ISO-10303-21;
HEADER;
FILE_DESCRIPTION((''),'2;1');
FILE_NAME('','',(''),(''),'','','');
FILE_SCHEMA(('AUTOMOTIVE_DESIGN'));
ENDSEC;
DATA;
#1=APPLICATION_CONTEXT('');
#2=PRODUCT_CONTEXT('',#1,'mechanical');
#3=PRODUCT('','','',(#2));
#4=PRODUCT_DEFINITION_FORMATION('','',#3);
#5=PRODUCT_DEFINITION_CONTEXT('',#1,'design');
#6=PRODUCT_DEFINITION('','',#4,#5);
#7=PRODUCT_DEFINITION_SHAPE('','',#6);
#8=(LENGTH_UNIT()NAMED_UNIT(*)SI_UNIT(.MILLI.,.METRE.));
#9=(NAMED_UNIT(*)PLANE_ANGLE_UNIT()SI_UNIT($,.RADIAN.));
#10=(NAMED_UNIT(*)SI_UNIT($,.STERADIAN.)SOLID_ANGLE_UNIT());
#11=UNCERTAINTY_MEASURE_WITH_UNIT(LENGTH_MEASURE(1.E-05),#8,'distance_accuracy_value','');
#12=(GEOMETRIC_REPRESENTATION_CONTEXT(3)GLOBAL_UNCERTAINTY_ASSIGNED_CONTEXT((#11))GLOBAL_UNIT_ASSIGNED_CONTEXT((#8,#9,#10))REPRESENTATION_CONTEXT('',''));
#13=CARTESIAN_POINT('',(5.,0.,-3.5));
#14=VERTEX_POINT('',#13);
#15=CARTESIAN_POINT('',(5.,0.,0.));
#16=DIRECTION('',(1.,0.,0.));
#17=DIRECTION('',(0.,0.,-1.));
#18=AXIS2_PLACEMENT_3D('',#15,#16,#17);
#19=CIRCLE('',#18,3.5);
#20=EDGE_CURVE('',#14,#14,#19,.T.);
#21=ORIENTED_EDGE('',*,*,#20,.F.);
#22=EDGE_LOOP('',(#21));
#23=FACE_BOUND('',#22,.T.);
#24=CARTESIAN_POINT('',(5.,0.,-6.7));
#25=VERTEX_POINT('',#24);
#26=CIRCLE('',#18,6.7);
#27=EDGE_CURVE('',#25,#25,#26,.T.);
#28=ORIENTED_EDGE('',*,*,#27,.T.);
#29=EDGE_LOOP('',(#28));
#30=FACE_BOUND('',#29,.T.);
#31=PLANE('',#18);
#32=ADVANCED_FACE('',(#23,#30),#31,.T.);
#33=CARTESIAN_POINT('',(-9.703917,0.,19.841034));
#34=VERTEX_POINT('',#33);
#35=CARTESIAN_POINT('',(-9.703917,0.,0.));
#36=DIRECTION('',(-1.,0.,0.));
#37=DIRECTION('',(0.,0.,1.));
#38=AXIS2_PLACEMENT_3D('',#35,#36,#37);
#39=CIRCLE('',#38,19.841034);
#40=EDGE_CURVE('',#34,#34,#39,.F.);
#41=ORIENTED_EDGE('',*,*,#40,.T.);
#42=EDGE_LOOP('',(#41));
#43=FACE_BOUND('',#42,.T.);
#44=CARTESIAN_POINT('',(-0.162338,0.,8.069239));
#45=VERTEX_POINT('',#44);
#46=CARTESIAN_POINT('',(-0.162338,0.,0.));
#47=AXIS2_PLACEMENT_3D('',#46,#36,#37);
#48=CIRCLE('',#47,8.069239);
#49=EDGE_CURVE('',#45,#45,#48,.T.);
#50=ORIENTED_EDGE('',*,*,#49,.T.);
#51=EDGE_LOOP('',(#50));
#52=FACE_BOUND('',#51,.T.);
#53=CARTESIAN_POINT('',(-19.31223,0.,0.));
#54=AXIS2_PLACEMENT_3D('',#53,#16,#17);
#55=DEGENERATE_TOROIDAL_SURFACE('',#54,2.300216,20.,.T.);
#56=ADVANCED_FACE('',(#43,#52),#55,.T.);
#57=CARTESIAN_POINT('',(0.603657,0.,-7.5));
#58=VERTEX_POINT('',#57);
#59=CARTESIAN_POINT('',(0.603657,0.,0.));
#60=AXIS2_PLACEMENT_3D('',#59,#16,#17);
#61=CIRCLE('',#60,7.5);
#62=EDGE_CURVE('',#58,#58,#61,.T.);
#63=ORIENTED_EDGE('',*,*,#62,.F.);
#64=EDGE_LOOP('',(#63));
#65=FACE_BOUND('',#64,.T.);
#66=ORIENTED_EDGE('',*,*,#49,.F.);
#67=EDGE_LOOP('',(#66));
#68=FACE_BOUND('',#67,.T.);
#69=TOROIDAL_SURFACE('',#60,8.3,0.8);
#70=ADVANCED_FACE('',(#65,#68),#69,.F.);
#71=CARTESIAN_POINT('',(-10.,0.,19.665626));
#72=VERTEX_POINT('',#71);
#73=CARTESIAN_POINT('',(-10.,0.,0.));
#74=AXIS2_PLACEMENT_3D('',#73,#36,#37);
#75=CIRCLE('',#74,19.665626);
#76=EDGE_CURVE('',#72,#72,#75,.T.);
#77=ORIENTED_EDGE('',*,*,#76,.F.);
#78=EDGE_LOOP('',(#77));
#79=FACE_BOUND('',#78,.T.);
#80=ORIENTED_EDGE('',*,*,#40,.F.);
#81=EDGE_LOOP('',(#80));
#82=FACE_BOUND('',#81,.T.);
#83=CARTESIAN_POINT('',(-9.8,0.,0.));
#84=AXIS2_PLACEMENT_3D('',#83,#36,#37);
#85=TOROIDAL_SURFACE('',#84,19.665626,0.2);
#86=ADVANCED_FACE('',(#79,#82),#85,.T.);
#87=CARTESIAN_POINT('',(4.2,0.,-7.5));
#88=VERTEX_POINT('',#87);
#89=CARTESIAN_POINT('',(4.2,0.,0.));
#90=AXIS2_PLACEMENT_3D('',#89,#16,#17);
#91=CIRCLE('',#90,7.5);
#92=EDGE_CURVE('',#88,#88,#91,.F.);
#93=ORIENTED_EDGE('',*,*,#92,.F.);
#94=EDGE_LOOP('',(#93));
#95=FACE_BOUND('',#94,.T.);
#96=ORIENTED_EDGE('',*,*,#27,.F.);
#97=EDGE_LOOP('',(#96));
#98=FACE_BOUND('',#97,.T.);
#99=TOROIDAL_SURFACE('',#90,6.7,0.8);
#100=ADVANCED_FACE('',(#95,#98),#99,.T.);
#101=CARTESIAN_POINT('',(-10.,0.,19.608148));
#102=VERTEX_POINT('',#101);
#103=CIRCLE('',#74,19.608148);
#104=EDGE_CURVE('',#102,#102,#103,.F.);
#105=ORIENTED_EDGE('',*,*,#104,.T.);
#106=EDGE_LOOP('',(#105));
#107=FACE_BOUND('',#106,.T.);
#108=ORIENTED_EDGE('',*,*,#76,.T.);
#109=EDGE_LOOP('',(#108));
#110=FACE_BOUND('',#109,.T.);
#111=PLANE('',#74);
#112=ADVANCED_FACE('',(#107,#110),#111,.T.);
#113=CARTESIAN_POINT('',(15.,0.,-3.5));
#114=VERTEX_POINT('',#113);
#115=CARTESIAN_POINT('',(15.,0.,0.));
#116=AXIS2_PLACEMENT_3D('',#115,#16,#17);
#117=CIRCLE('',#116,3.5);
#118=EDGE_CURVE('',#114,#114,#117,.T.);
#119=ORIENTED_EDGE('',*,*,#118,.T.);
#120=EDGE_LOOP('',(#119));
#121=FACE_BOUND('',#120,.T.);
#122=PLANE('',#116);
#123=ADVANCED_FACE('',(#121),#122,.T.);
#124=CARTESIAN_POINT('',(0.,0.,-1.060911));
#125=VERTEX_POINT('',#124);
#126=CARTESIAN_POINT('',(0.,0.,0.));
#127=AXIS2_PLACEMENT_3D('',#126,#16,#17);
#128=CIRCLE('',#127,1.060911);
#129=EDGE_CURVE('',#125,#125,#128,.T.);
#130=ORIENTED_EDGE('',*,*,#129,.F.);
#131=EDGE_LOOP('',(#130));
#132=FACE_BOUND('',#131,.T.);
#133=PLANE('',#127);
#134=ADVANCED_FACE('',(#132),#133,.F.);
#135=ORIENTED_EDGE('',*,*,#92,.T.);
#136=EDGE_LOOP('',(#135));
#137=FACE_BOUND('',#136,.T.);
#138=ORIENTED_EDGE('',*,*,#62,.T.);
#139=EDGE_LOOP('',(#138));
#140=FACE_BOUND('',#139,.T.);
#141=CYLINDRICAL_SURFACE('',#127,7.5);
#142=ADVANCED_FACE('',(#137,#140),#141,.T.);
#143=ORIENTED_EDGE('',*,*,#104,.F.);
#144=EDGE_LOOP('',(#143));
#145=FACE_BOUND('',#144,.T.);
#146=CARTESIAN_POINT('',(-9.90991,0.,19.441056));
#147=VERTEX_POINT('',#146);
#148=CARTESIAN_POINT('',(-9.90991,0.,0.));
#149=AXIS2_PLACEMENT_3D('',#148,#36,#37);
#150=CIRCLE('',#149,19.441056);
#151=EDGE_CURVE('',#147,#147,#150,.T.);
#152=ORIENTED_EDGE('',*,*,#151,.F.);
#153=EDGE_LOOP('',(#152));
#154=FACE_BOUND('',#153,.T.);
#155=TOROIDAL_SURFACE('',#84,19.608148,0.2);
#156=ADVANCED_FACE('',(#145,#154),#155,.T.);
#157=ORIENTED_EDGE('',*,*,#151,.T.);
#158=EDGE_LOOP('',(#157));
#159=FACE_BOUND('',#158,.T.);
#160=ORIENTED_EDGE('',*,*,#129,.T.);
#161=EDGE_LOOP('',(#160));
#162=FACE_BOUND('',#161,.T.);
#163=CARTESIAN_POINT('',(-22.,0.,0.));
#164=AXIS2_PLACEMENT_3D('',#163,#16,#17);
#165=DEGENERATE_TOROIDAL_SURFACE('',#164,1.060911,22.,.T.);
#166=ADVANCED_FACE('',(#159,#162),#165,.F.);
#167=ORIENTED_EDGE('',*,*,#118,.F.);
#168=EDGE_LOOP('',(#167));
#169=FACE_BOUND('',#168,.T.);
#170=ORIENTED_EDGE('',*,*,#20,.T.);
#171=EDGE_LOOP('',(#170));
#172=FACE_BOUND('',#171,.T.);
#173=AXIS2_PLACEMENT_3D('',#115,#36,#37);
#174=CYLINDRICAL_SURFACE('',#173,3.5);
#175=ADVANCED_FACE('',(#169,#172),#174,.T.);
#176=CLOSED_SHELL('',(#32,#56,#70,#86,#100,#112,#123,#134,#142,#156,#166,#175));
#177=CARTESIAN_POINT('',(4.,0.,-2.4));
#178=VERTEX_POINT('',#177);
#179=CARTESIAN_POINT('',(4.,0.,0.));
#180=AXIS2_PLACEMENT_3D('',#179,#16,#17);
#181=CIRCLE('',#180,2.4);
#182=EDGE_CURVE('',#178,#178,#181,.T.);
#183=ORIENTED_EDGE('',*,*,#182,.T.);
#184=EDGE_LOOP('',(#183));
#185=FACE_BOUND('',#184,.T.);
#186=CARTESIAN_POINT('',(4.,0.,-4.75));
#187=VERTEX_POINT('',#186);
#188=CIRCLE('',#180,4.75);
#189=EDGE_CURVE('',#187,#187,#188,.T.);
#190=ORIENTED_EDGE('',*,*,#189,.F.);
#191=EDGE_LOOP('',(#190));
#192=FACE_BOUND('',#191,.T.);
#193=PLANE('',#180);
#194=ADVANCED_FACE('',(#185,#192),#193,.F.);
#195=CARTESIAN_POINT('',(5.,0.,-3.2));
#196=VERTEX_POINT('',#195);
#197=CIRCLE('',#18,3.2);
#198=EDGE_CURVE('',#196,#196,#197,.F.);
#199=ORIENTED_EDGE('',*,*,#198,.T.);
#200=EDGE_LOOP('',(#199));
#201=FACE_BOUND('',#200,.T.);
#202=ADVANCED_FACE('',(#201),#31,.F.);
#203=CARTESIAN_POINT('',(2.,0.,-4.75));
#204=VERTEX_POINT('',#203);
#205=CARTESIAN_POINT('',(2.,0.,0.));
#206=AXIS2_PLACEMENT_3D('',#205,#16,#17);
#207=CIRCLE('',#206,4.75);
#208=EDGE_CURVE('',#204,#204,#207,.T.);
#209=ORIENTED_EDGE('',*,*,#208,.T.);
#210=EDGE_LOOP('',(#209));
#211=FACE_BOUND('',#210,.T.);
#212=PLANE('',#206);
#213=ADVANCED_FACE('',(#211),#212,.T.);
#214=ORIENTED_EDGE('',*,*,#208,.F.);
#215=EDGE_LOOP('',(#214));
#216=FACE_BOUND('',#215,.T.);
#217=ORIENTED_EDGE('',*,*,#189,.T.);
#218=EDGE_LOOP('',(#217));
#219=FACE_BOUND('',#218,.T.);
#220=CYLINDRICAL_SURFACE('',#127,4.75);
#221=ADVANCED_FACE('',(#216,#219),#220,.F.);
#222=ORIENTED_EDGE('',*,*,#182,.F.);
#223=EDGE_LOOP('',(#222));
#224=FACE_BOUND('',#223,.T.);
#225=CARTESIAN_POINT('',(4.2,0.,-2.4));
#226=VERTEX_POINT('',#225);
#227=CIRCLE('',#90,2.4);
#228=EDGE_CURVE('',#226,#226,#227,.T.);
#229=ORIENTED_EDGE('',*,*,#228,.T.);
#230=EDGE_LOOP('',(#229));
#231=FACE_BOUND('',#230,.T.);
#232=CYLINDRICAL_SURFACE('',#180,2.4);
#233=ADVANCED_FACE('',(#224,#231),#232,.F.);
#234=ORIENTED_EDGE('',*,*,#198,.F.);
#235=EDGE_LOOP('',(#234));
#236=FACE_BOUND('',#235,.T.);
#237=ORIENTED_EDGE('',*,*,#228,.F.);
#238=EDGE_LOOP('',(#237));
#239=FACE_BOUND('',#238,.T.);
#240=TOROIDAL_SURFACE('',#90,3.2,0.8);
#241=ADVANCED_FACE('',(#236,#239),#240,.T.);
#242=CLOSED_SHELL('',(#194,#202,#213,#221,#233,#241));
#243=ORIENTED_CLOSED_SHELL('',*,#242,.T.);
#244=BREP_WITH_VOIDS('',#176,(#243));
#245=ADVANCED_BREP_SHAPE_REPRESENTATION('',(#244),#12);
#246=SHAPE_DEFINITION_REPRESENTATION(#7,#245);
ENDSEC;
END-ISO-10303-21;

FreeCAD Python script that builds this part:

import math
import FreeCAD as App
import Part
import Sketcher

V = App.Vector


def edges_at(feature, points):
    """Names of the edges that pass closest to the given points."""
    edges = feature.Shape.Edges
    near = lambda p: min(range(len(edges)), key=lambda i: edges[i].distToShape(Part.Vertex(*p))[0])
    return sorted({f"Edge{near(p) + 1}" for p in points})

doc = App.newDocument("Part")
body = doc.addObject("PartDesign::Body", "Body")

sketch1 = body.newObject("Sketcher::SketchObject", "Sketch")
sketch1.AttachmentSupport = (doc.getObject("XY_Plane"), [""])
sketch1.MapMode = "FlatFace"
sketch1.addGeometry([
    Part.ArcOfCircle(Part.Circle(V(-22, 1.1, 0), V(0, 0, 1), 22), math.radians(0), math.radians(57)),
    Part.LineSegment(V(0, 1.1, 0), V(0, 0, 0)),
    Part.LineSegment(V(0, 0, 0), V(2, 0, 0)),
    Part.LineSegment(V(2, 0, 0), V(2, 4.8, 0)),
    Part.LineSegment(V(2, 4.8, 0), V(4, 4.8, 0)),
    Part.LineSegment(V(4, 4.8, 0), V(4, 0, 0)),
    Part.LineSegment(V(4, 0, 0), V(5, 0, 0)),
    Part.LineSegment(V(5, 0, 0), V(5, 7.5, 0)),
    Part.LineSegment(V(5, 7.5, 0), V(0, 7.5, 0)),
    Part.ArcOfCircle(Part.Circle(V(-19.3, 2.3, 0), V(0, 0, 1), 20), math.radians(15), math.radians(62)),
    Part.LineSegment(V(-10, 20, 0), V(-10, 19.5, 0)),
], False)
sketch1.addConstraint([
    Sketcher.Constraint("Tangent", 0, 1, 1, 1),
    Sketcher.Constraint("Coincident", 1, 2, 2, 1),
    Sketcher.Constraint("Coincident", 2, 2, 3, 1),
    Sketcher.Constraint("Coincident", 3, 2, 4, 1),
    Sketcher.Constraint("Coincident", 4, 2, 5, 1),
    Sketcher.Constraint("Coincident", 5, 2, 6, 1),
    Sketcher.Constraint("Coincident", 6, 2, 7, 1),
    Sketcher.Constraint("Coincident", 7, 2, 8, 1),
    Sketcher.Constraint("Coincident", 8, 2, 9, 1),
    Sketcher.Constraint("Coincident", 9, 2, 10, 1),
    Sketcher.Constraint("Coincident", 10, 2, 0, 2),
    Sketcher.Constraint("Vertical", 1),
    Sketcher.Constraint("Horizontal", 2),
    Sketcher.Constraint("Vertical", 3),
    Sketcher.Constraint("Horizontal", 4),
    Sketcher.Constraint("Vertical", 5),
    Sketcher.Constraint("Horizontal", 6),
    Sketcher.Constraint("Vertical", 7),
    Sketcher.Constraint("Horizontal", 8),
    Sketcher.Constraint("Vertical", 10),
    Sketcher.Constraint("Coincident", 1, 2, -1, 1),
    Sketcher.Constraint("PointOnObject", 5, 2, -1),
    Sketcher.Constraint("PointOnObject", 8, 2, -2),
    Sketcher.Constraint("Equal", 2, 4),
    Sketcher.Constraint("Radius", 0, 22.0),
    Sketcher.Constraint("Radius", 9, 20.0),
    Sketcher.Constraint("DistanceX", 2, 1, 2, 2, 2.0),
    Sketcher.Constraint("DistanceX", 6, 1, 6, 2, 1.0),
    Sketcher.Constraint("DistanceY", 7, 1, 7, 2, 7.5),
    Sketcher.Constraint("DistanceY", 10, 2, 10, 1, 0.5),
    Sketcher.Constraint("DistanceX", 9, 2, -1, 1, 10.0),
    Sketcher.Constraint("DistanceY", -1, 1, 9, 2, 20.0),
    Sketcher.Constraint("DistanceY", 3, 1, 3, 2, 4.75),
])
revolution = body.newObject("PartDesign::Revolution", "Revolution")
revolution.Profile = sketch1
revolution.ReferenceAxis = (sketch1, ["H_Axis"])
revolution.Angle = 360

sketch2 = body.newObject("Sketcher::SketchObject", "Sketch001")
sketch2.AttachmentSupport = (doc.getObject("YZ_Plane"), [""])
sketch2.MapMode = "FlatFace"
sketch2.AttachmentOffset = App.Placement(V(0, 0, 5), App.Rotation())
sketch2.addGeometry(Part.Circle(V(0, 0, 0), V(0, 0, 1), 2.4), False)
sketch2.addConstraint([
    Sketcher.Constraint("Coincident", 0, 3, -1, 1),
    Sketcher.Constraint("Diameter", 0, 4.8),
])
pocket1 = body.newObject("PartDesign::Pocket", "Pocket")
pocket1.Profile = sketch2
pocket1.Length = 1
doc.recompute()

fillet = body.newObject("PartDesign::Fillet", "Fillet")
fillet.Base = (pocket1, edges_at(pocket1, [(0, 0, 7.5), (5, 0, 7.5), (5, 0, 2.4)]))
fillet.Radius = 0.8
doc.recompute()

fillet2 = body.newObject("PartDesign::Fillet", "Fillet001")
fillet2.Base = (fillet, edges_at(fillet, [(-10, 0, 20), (-10, 0, 19.5)]))
fillet2.Radius = 0.2

sketch3 = body.newObject("Sketcher::SketchObject", "Sketch002")
sketch3.AttachmentSupport = (doc.getObject("YZ_Plane"), [""])
sketch3.MapMode = "FlatFace"
sketch3.AttachmentOffset = App.Placement(V(0, 0, 5), App.Rotation())
sketch3.addGeometry(Part.Circle(V(0, 0, 0), V(0, 0, 1), 3.5), False)
sketch3.addConstraint([
    Sketcher.Constraint("Coincident", 0, 3, -1, 1),
    Sketcher.Constraint("Diameter", 0, 7.0),
])
pad1 = body.newObject("PartDesign::Pad", "Pad")
pad1.Profile = sketch3
pad1.Length = 10

doc.recompute()
